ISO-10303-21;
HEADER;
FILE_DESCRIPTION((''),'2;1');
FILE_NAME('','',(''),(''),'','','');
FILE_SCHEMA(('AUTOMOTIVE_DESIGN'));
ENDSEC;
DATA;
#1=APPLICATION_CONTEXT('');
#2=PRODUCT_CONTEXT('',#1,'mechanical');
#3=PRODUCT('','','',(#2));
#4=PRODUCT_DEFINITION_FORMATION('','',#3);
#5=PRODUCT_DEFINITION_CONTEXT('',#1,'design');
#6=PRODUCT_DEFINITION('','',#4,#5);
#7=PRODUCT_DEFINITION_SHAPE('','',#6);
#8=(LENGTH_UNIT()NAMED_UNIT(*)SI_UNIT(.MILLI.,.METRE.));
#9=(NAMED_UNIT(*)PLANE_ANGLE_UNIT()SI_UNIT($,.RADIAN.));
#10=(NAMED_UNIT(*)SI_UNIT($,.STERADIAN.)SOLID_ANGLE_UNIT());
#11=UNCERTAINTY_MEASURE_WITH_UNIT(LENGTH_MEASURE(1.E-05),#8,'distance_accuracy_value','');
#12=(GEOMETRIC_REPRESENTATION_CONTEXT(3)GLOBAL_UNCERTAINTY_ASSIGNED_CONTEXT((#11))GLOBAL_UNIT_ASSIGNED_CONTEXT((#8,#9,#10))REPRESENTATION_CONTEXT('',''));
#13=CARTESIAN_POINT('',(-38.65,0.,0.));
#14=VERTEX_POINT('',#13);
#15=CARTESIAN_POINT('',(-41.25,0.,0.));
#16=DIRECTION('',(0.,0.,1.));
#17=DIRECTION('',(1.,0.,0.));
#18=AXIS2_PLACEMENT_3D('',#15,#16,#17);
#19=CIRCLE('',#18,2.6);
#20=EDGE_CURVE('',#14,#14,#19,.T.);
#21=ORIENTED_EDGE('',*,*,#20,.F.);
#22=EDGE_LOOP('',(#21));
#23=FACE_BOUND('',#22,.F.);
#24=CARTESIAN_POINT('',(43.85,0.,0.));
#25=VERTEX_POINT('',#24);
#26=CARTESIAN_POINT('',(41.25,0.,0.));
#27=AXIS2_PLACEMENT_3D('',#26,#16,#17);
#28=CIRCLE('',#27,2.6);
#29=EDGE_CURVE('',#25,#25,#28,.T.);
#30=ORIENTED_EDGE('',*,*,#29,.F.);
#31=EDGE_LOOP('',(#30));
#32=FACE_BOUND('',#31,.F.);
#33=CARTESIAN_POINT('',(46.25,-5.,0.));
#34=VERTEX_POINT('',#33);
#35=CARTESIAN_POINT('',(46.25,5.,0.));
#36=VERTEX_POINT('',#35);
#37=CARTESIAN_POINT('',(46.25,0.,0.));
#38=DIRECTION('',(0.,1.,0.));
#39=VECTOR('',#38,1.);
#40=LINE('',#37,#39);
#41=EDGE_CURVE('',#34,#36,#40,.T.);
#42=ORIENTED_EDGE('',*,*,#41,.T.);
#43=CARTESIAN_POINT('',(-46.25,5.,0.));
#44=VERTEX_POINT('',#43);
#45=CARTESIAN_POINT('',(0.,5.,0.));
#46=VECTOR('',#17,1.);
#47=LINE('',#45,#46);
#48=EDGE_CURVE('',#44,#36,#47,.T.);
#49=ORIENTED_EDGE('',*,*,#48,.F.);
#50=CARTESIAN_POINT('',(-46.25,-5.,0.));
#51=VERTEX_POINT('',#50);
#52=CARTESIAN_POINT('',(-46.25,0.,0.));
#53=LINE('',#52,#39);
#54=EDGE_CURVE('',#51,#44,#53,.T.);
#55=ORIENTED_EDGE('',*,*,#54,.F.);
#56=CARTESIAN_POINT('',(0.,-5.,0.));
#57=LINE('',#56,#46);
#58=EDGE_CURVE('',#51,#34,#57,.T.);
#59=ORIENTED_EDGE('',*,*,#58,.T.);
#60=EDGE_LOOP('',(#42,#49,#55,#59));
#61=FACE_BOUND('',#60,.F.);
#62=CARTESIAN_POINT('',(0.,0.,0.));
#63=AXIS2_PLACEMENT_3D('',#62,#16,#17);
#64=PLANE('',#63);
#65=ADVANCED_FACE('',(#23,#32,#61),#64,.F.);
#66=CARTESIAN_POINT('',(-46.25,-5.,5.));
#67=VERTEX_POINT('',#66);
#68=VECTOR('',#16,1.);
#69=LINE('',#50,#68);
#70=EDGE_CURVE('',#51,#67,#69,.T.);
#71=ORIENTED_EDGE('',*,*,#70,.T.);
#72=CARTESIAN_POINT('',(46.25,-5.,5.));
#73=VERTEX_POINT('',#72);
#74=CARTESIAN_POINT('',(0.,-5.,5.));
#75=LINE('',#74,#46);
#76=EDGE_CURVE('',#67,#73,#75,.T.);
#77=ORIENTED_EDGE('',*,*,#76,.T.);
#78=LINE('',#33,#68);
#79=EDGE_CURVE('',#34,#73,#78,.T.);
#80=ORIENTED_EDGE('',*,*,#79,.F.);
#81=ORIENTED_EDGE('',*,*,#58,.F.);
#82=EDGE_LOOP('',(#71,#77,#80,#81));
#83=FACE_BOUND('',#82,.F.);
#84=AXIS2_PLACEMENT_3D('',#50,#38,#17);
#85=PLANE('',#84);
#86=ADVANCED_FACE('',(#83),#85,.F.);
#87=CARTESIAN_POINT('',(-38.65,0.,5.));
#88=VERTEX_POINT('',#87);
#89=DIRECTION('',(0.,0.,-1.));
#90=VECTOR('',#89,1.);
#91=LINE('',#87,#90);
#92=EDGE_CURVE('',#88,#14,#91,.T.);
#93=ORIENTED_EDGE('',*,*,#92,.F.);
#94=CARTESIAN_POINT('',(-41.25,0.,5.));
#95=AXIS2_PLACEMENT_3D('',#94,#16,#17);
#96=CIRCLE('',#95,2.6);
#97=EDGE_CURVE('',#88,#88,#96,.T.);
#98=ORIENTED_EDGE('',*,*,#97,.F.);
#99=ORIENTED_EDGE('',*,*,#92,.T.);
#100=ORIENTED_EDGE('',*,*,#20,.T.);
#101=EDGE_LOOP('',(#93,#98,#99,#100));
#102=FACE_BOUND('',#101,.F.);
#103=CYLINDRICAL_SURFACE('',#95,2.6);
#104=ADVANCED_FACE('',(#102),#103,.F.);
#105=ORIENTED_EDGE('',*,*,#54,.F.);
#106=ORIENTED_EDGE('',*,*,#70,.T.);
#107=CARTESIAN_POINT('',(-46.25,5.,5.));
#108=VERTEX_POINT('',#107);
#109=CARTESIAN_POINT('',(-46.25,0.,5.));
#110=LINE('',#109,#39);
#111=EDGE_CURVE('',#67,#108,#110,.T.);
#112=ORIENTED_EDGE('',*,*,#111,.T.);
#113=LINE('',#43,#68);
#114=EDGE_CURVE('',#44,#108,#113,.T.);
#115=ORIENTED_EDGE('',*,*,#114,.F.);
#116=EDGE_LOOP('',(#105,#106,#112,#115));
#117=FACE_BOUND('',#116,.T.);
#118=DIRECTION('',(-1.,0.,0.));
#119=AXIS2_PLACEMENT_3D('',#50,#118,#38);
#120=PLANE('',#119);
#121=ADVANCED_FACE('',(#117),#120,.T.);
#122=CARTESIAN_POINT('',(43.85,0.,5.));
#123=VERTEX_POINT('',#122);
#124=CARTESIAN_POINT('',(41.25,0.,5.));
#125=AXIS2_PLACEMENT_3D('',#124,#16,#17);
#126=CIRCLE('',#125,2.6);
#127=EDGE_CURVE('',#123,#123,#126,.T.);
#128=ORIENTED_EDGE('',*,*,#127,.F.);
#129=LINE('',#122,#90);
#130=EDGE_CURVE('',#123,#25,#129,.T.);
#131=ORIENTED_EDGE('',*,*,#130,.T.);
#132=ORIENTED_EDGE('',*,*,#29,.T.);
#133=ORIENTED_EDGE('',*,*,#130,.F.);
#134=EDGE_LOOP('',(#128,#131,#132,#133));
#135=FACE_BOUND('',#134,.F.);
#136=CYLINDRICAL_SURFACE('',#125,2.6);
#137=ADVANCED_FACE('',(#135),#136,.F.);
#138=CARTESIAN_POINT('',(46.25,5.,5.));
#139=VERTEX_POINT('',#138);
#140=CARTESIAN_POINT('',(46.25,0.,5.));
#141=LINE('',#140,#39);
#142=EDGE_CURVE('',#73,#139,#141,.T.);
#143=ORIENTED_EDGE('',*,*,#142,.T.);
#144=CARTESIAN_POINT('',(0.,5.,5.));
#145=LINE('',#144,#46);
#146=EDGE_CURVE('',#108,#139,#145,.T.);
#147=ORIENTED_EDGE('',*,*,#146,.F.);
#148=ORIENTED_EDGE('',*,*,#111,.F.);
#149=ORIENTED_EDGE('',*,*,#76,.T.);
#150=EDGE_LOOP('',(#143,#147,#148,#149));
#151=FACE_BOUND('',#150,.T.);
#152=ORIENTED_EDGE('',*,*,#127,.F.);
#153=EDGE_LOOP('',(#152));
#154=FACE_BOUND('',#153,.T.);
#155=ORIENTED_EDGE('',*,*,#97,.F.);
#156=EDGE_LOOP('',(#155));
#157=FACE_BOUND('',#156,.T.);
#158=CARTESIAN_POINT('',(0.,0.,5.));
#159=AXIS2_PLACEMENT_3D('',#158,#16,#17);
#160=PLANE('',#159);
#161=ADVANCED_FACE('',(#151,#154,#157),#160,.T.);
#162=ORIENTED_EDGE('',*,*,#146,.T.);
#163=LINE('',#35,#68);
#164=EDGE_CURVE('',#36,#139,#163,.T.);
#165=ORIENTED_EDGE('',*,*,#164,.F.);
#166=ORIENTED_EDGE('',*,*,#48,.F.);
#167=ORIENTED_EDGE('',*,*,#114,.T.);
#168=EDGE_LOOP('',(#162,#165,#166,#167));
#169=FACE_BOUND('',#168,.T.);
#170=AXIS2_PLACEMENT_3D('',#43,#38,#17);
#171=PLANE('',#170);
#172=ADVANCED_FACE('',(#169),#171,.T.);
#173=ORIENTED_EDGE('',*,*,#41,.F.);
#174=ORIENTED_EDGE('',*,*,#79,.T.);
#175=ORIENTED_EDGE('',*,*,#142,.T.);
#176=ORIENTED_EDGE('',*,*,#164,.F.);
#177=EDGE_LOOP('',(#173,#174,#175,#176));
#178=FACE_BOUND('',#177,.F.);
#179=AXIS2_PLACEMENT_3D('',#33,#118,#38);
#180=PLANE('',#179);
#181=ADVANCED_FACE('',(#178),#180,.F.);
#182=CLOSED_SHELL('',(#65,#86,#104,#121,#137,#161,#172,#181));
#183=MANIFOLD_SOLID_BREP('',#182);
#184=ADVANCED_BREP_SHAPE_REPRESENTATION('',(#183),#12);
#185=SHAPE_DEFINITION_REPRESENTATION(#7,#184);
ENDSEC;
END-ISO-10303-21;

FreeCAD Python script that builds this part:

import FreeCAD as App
import Part
import Sketcher
from FreeCAD import Vector
Q = App.Units.Quantity


def add_polygon(sketch, points):
    """Adds a closed chain of lines whose ends are joined by coincident constraints."""
    first, n = sketch.GeometryCount, len(points)
    for a, b in zip(points, points[1:] + points[:1]):
        sketch.addGeometry(Part.LineSegment(App.Vector(*a, 0), App.Vector(*b, 0)), False)
    for i in range(n):
        sketch.addConstraint(Sketcher.Constraint("Coincident", first + i, 2, first + (i + 1) % n, 1))

doc = App.newDocument("Part")
body = doc.addObject("PartDesign::Body", "Body")

sketch1 = body.newObject("Sketcher::SketchObject", "Sketch")
sketch1.AttachmentSupport = (doc.getObject("XY_Plane"), [""])
sketch1.MapMode = "FlatFace"
add_polygon(sketch1, [(-46, 5), (-46, -5), (46, -5), (46, 5)])
sketch1.addConstraint([
    Sketcher.Constraint("Vertical", 0),
    Sketcher.Constraint("Horizontal", 1),
    Sketcher.Constraint("Vertical", 2),
    Sketcher.Constraint("Horizontal", 3),
    Sketcher.Constraint("Symmetric", 0, 2, 2, 2, -1, 1),
    Sketcher.Constraint("DistanceY", 0, 2, 0, 1, Q("10 mm")),
    Sketcher.Constraint("DistanceX", 1, 1, 1, 2, Q("92.5 mm")),
])
pad1 = body.newObject("PartDesign::Pad", "Pad")
pad1.Profile = sketch1
pad1.Length = 5

sketch2 = body.newObject("Sketcher::SketchObject", "Sketch001")
sketch2.AttachmentSupport = (doc.getObject("XY_Plane"), [""])
sketch2.MapMode = "FlatFace"
sketch2.AttachmentOffset = App.Placement(Vector(0, 0, 5), App.Rotation())
sketch2.addGeometry(Part.Circle(Vector(-41.2, 0, 0), Vector(0, 0, 1), 2.6), False)
sketch2.addConstraint([
    Sketcher.Constraint("PointOnObject", 0, 3, -1),
    Sketcher.Constraint("Diameter", 0, Q("5.2 mm")),
    Sketcher.Constraint("DistanceX", 0, 3, -1, 1, Q("41.25 mm")),
])
pocket1 = body.newObject("PartDesign::Pocket", "Pocket")
pocket1.Profile = sketch2
pocket1.Length = 25

sketch3 = body.newObject("Sketcher::SketchObject", "Sketch002")
sketch3.AttachmentSupport = (doc.getObject("XY_Plane"), [""])
sketch3.MapMode = "FlatFace"
sketch3.AttachmentOffset = App.Placement(Vector(0, 0, 5), App.Rotation())
sketch3.addGeometry(Part.Circle(Vector(41.2, 0, 0), Vector(0, 0, 1), 2.6), False)
sketch3.addConstraint([
    Sketcher.Constraint("PointOnObject", 0, 3, -1),
    Sketcher.Constraint("Diameter", 0, Q("5.2 mm")),
    Sketcher.Constraint("DistanceX", -1, 1, 0, 3, Q("41.25 mm")),
])
pocket2 = body.newObject("PartDesign::Pocket", "Pocket001")
pocket2.Profile = sketch3
pocket2.Length = 25

doc.recompute()
